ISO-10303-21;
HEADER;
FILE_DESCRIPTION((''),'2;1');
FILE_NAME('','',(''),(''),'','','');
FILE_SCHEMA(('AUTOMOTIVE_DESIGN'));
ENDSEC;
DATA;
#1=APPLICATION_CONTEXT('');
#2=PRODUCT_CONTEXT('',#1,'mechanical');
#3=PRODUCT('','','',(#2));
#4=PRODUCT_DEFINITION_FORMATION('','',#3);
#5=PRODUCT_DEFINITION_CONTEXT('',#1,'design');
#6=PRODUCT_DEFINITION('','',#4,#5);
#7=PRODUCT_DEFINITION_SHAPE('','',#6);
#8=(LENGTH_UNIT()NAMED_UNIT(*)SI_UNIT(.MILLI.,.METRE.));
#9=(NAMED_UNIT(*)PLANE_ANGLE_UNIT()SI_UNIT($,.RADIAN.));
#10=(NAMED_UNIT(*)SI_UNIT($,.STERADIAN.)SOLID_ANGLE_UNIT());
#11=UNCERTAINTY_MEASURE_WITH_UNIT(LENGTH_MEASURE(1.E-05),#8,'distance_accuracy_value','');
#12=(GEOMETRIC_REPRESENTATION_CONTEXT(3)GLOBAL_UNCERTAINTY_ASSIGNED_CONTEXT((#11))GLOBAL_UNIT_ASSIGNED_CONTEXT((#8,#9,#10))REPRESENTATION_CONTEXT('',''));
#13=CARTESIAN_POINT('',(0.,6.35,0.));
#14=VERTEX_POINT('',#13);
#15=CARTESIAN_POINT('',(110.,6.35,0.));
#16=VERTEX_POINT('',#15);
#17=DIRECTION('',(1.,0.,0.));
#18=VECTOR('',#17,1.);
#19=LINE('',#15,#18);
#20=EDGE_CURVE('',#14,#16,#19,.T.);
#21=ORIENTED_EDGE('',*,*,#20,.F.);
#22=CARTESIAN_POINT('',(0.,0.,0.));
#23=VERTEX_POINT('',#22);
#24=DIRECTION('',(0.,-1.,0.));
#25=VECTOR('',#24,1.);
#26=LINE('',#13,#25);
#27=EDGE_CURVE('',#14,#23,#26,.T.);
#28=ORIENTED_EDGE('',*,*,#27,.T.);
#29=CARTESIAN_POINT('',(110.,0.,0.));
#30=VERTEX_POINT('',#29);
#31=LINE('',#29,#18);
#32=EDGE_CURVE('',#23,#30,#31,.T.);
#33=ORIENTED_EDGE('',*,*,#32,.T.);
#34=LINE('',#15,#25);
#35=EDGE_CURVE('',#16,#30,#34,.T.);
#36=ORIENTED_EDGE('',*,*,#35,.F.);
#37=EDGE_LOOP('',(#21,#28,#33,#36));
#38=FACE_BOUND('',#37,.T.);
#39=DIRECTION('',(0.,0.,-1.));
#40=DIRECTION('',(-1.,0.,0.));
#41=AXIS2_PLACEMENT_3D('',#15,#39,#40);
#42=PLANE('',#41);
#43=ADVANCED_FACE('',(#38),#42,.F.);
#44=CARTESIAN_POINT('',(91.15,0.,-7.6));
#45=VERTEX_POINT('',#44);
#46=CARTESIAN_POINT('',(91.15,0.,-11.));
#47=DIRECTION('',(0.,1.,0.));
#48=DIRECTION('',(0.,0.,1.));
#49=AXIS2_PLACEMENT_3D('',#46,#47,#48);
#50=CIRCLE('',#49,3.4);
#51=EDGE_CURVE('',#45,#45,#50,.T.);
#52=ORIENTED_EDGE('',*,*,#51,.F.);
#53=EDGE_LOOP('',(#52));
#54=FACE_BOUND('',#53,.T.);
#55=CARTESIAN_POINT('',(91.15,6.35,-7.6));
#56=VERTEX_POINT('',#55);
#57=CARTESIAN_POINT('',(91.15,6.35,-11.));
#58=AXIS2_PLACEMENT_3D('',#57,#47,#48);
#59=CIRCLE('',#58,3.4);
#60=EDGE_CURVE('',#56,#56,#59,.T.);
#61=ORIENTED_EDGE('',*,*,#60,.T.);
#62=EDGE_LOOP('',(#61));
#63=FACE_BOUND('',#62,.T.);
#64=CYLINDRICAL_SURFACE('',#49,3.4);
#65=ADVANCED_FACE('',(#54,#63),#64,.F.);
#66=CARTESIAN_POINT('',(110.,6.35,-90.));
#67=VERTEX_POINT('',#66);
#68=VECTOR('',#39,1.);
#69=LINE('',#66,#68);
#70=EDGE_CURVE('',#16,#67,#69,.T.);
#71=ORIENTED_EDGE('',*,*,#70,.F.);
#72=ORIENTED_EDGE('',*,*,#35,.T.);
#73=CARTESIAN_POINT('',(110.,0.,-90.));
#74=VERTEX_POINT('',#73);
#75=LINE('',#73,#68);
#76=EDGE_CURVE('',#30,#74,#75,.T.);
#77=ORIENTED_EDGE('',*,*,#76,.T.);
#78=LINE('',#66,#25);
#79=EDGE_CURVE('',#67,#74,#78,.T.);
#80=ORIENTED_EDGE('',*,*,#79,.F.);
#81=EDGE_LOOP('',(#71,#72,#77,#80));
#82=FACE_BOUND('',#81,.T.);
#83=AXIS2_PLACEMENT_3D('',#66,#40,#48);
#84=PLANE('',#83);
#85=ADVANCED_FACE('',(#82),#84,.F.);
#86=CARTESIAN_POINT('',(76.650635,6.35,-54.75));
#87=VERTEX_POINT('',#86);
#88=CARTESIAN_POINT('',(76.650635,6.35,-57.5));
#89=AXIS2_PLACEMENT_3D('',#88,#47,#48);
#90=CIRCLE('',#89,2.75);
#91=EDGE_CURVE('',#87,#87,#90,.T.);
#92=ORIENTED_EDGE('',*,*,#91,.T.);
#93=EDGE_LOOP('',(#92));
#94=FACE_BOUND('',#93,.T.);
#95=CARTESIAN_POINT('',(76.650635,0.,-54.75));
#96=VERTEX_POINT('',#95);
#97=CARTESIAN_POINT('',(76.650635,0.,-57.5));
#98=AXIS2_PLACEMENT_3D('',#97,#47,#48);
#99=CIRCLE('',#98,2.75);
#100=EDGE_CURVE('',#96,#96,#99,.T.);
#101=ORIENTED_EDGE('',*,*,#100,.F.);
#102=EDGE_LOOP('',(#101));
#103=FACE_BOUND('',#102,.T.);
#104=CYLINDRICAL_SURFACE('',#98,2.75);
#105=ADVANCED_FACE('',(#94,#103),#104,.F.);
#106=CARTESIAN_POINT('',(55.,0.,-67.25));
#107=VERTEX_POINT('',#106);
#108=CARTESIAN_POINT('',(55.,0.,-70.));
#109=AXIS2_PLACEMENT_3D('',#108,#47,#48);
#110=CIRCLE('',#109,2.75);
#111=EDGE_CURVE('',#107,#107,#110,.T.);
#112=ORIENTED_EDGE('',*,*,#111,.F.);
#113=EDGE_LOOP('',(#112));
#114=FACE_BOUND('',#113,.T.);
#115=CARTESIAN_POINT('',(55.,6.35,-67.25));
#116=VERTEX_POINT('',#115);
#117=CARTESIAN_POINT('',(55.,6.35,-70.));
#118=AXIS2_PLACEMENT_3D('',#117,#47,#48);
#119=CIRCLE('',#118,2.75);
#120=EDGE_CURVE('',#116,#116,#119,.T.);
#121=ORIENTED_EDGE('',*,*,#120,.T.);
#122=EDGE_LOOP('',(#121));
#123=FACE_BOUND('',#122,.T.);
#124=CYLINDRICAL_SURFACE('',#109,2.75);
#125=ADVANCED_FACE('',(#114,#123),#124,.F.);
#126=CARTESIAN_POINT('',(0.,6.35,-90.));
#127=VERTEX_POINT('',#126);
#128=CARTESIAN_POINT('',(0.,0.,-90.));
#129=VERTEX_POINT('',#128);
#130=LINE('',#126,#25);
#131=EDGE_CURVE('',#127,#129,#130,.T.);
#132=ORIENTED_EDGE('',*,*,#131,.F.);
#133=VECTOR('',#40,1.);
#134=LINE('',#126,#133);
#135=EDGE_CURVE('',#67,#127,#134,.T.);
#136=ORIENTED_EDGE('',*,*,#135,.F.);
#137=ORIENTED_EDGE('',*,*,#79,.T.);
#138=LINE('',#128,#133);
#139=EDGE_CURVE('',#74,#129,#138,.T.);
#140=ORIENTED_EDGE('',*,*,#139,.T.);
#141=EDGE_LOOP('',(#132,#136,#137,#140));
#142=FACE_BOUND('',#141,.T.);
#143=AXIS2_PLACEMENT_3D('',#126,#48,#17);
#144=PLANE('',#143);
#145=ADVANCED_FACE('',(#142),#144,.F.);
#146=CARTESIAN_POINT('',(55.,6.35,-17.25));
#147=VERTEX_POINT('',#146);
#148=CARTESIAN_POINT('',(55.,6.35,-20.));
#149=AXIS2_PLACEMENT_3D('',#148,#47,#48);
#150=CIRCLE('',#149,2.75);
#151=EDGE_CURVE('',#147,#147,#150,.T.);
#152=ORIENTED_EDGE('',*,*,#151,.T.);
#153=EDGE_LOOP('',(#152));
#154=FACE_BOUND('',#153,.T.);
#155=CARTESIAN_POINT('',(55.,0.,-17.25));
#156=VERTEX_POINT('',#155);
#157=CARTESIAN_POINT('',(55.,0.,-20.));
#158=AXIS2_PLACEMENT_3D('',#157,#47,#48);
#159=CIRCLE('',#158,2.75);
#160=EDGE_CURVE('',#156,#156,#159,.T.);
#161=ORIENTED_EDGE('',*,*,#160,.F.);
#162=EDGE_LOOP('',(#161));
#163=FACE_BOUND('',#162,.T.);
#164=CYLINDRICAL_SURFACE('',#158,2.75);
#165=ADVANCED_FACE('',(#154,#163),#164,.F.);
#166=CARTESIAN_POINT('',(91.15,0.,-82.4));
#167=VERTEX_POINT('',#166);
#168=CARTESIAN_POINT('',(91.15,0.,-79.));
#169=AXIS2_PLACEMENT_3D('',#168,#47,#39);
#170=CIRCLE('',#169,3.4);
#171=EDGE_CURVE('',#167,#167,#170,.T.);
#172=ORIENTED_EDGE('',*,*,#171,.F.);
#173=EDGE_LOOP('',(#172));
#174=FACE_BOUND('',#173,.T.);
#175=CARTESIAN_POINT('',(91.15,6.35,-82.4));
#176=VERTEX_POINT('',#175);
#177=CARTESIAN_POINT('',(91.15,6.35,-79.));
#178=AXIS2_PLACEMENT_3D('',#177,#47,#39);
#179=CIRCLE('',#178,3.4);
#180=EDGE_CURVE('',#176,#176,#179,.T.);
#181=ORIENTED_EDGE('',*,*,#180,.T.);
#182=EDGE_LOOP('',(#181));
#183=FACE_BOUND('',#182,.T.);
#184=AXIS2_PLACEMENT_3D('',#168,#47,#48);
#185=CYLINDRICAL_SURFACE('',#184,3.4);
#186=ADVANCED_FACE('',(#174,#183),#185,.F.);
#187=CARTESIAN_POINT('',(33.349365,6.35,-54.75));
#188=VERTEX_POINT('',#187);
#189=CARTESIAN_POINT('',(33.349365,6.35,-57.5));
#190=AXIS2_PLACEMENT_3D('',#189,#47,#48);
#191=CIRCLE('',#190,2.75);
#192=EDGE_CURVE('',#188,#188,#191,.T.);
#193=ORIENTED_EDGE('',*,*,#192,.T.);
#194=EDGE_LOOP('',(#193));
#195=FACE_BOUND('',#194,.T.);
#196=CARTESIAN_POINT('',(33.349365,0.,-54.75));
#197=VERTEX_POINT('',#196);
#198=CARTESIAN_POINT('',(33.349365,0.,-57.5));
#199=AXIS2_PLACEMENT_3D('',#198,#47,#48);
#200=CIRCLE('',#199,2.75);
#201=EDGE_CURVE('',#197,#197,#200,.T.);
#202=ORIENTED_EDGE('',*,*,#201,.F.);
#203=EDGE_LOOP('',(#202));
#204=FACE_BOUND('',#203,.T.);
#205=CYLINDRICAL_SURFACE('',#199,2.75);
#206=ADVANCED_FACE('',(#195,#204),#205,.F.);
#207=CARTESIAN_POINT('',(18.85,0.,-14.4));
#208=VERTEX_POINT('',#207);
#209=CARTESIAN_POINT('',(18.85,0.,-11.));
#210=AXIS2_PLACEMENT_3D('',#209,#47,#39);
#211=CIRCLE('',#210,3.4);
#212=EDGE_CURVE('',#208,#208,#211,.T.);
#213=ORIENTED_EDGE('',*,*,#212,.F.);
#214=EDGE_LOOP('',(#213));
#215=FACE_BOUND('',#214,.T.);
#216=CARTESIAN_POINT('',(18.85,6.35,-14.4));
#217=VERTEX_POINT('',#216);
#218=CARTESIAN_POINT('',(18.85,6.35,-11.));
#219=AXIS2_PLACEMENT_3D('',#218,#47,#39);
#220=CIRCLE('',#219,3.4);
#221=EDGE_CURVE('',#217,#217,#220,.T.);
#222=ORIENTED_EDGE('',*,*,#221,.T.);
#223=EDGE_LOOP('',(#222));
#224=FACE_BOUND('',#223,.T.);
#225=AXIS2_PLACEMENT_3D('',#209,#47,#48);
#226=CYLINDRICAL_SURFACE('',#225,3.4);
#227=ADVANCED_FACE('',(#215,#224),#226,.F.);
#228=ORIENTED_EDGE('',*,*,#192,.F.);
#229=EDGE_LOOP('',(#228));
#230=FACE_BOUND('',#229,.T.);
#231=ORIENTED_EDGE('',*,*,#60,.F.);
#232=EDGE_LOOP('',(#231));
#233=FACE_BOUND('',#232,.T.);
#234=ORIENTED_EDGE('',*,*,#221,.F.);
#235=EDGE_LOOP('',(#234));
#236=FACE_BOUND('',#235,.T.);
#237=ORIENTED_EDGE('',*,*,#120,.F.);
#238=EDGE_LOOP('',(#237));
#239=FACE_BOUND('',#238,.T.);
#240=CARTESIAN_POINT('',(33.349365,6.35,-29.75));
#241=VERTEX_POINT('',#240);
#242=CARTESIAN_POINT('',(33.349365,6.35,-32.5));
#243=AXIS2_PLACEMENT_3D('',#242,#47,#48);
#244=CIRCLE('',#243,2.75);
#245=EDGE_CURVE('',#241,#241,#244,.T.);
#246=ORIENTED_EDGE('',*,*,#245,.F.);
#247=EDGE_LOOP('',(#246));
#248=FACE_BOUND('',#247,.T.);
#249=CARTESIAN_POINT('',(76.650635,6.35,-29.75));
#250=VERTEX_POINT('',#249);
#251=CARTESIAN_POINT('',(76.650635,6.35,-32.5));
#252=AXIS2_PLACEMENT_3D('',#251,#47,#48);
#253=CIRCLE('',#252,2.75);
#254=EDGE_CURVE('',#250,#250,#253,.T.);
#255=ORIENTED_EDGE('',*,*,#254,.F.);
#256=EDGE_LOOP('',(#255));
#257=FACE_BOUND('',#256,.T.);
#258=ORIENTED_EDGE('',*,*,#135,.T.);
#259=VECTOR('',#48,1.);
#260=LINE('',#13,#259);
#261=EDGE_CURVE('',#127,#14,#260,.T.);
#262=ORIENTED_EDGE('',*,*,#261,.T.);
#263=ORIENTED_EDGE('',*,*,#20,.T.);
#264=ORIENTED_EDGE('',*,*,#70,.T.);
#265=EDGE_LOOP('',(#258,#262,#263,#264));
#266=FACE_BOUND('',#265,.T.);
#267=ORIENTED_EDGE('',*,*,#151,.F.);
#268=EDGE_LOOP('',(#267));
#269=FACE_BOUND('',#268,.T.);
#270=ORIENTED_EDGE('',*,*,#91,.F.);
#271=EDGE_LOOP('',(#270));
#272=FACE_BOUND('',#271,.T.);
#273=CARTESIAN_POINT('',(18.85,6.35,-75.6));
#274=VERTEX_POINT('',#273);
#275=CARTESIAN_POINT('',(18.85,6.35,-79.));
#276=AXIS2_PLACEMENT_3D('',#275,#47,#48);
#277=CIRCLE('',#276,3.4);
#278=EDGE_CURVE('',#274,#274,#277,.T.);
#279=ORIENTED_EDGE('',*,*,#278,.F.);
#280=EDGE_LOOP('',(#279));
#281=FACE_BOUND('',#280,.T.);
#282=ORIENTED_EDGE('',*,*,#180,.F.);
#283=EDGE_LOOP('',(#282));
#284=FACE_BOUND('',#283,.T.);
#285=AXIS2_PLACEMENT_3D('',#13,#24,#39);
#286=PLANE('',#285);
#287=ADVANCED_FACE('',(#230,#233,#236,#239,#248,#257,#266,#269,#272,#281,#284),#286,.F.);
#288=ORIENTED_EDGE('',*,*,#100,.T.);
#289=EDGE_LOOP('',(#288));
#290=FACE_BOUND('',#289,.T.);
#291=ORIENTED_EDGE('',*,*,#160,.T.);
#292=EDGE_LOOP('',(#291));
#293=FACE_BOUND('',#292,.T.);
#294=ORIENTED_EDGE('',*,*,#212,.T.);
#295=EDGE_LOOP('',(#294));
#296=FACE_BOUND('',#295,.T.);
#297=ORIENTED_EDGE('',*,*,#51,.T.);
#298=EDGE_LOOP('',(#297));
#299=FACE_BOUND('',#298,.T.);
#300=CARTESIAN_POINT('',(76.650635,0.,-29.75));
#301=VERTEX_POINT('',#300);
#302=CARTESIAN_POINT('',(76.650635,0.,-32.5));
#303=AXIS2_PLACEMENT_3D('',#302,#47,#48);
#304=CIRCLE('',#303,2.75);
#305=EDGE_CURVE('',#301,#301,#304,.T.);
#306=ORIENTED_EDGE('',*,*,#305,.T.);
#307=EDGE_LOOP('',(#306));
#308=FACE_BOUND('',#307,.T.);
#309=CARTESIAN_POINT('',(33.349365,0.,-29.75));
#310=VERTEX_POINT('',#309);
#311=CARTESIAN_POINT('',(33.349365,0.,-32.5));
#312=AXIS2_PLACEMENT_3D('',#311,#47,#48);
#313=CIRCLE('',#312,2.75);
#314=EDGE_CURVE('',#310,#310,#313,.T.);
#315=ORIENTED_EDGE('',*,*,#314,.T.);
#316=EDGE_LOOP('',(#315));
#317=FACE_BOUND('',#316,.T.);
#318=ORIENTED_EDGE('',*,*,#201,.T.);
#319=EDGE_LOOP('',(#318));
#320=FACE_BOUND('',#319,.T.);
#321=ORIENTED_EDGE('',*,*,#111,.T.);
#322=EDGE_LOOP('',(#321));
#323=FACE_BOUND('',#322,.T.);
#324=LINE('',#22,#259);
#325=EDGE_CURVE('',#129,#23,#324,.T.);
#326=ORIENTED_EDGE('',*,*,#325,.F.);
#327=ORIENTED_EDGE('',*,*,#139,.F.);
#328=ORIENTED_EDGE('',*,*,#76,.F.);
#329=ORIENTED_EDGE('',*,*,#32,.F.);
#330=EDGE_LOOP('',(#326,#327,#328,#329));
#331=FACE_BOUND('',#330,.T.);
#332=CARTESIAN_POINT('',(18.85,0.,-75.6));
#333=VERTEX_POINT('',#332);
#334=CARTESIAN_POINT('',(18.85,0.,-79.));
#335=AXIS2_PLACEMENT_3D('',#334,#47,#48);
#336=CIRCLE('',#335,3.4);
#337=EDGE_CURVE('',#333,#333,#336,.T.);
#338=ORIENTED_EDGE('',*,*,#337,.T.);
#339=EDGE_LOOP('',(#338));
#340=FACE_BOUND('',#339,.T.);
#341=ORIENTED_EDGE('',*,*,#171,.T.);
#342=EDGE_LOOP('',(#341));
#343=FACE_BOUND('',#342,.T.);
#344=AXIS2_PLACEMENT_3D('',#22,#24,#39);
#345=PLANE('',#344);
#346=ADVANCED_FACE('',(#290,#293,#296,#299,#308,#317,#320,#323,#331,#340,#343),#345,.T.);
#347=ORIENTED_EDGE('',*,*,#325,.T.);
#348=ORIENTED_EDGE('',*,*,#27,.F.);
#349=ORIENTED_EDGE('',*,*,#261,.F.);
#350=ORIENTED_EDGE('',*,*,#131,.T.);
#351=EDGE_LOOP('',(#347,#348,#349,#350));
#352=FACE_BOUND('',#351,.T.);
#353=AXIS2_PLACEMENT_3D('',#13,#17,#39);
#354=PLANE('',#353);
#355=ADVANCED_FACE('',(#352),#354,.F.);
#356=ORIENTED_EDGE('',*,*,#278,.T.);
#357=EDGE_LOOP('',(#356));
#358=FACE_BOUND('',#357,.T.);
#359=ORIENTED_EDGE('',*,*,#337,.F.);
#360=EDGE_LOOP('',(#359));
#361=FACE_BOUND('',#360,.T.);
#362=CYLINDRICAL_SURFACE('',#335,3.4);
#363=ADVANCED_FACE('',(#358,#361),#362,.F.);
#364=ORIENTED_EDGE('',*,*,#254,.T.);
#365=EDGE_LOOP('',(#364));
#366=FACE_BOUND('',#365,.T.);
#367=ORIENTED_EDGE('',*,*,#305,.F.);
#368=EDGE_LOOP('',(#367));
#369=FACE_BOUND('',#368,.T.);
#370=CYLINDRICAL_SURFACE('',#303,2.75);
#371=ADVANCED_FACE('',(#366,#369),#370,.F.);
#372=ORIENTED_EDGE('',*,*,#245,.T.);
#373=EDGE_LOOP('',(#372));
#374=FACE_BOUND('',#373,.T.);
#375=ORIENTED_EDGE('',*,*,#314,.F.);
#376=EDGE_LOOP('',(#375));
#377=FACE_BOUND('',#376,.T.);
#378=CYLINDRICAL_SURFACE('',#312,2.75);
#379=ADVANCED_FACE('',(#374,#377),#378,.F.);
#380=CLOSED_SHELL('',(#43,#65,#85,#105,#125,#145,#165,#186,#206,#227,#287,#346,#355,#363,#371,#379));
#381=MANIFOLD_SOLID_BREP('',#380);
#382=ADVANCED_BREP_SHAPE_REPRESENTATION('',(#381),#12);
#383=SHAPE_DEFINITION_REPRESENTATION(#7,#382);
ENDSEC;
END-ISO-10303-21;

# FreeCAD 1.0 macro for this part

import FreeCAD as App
import Part
import Sketcher
from FreeCAD import Vector

doc = App.newDocument("Part")
body = doc.addObject("PartDesign::Body", "Body")

sketch1 = body.newObject("Sketcher::SketchObject", "Sketch")
sketch1.AttachmentSupport = (doc.getObject("XZ_Plane"), [""])
sketch1.MapMode = "FlatFace"
sketch1.addGeometry([
    Part.LineSegment(Vector(0, -90, 0), Vector(0, 0, 0)),
    Part.LineSegment(Vector(0, 0, 0), Vector(110, 0, 0)),
    Part.LineSegment(Vector(110, 0, 0), Vector(110, -90, 0)),
    Part.LineSegment(Vector(110, -90, 0), Vector(0, -90, 0)),
], False)
sketch1.addConstraint([
    Sketcher.Constraint("Coincident", 0, 2, 1, 1),
    Sketcher.Constraint("Coincident", 1, 2, 2, 1),
    Sketcher.Constraint("Coincident", 2, 2, 3, 1),
    Sketcher.Constraint("Coincident", 3, 2, 0, 1),
    Sketcher.Constraint("Vertical", 0),
    Sketcher.Constraint("Horizontal", 1),
    Sketcher.Constraint("Vertical", 2),
    Sketcher.Constraint("Horizontal", 3),
    Sketcher.Constraint("Coincident", 0, 2, -1, 1),
    Sketcher.Constraint("DistanceX", 1, 1, 1, 2, 110.0),
    Sketcher.Constraint("DistanceY", 0, 1, 0, 2, 90.0),
])
pad1 = body.newObject("PartDesign::Pad", "Pad")
pad1.Profile = sketch1
pad1.Length = 6.35
pad1.Reversed = True

sketch2 = body.newObject("Sketcher::SketchObject", "Sketch001")
sketch2.AttachmentSupport = (doc.getObject("XZ_Plane"), [""])
sketch2.MapMode = "FlatFace"
sketch2.AttachmentOffset = App.Placement(Vector(0, 0, -6.35), App.Rotation())
sketch2.addGeometry([
    Part.Circle(Vector(18.85, -79, 0), Vector(0, 0, 1), 3.4),
    Part.Circle(Vector(18.85, -11, 0), Vector(0, 0, 1), 3.4),
    Part.Circle(Vector(91.15, -11, 0), Vector(0, 0, 1), 3.4),
    Part.Circle(Vector(91.15, -79, 0), Vector(0, 0, 1), 3.4),
], False)
sketch2.addConstraint([
    Sketcher.Constraint("Equal", 0, 1),
    Sketcher.Constraint("Equal", 1, 2),
    Sketcher.Constraint("Equal", 2, 3),
    Sketcher.Constraint("Horizontal", 1, 3, 2, 3),
    Sketcher.Constraint("Horizontal", 0, 3, 3, 3),
    Sketcher.Constraint("Vertical", 0, 3, 1, 3),
    Sketcher.Constraint("Vertical", 2, 3, 3, 3),
    Sketcher.Constraint("Diameter", 0, 6.8),
    Sketcher.Constraint("DistanceY", 0, 3, -1, 1, 79.0),
    Sketcher.Constraint("DistanceY", 1, 3, -1, 1, 11.0),
    Sketcher.Constraint("DistanceX", 1, 3, 2, 3, 72.3),
    Sketcher.Constraint("DistanceX", -1, 1, 0, 3, 18.85),
])
pocket1 = body.newObject("PartDesign::Pocket", "Pocket")
pocket1.Profile = sketch2
pocket1.Type = "ThroughAll"
pocket1.Reversed = True

sketch3 = body.newObject("Sketcher::SketchObject", "Sketch002")
sketch3.AttachmentSupport = (doc.getObject("XZ_Plane"), [""])
sketch3.MapMode = "FlatFace"
sketch3.AttachmentOffset = App.Placement(Vector(0, 0, -6.35), App.Rotation())
sketch3.addGeometry([
    Part.Circle(Vector(55, -70, 0), Vector(0, 0, 1), 2.75),
    Part.Circle(Vector(76.650635, -57.5, 0), Vector(0, 0, 1), 2.75),
    Part.Circle(Vector(76.650635, -32.5, 0), Vector(0, 0, 1), 2.75),
    Part.Circle(Vector(55, -20, 0), Vector(0, 0, 1), 2.75),
    Part.Circle(Vector(33.349365, -32.5, 0), Vector(0, 0, 1), 2.75),
    Part.Circle(Vector(33.349365, -57.5, 0), Vector(0, 0, 1), 2.75),
], False)
sketch3.addConstraint([
    Sketcher.Constraint("Equal", 0, 1),
    Sketcher.Constraint("Equal", 1, 2),
    Sketcher.Constraint("Equal", 2, 3),
    Sketcher.Constraint("Equal", 3, 4),
    Sketcher.Constraint("Equal", 4, 5),
    Sketcher.Constraint("Horizontal", 2, 3, 4, 3),
    Sketcher.Constraint("Horizontal", 1, 3, 5, 3),
    Sketcher.Constraint("Vertical", 1, 3, 2, 3),
    Sketcher.Constraint("Vertical", 0, 3, 3, 3),
    Sketcher.Constraint("Vertical", 4, 3, 5, 3),
    Sketcher.Constraint("Diameter", 0, 5.5),
    Sketcher.Constraint("DistanceX", -1, 1, 0, 3, 55.0),
    Sketcher.Constraint("DistanceY", 0, 3, -1, 1, 70.0),
    Sketcher.Constraint("DistanceY", 3, 3, -1, 1, 20.0),
    Sketcher.Constraint("DistanceY", 1, 3, 2, 3, 25.0),
    Sketcher.Constraint("DistanceY", 1, 3, -1, 1, 57.5),
    Sketcher.Constraint("DistanceX", 4, 3, 2, 3, 43.30127),
    Sketcher.Constraint("DistanceX", -1, 1, 1, 3, 76.650635),
])
pocket2 = body.newObject("PartDesign::Pocket", "Pocket001")
pocket2.Profile = sketch3
pocket2.Type = "ThroughAll"
pocket2.Reversed = True

doc.recompute()
